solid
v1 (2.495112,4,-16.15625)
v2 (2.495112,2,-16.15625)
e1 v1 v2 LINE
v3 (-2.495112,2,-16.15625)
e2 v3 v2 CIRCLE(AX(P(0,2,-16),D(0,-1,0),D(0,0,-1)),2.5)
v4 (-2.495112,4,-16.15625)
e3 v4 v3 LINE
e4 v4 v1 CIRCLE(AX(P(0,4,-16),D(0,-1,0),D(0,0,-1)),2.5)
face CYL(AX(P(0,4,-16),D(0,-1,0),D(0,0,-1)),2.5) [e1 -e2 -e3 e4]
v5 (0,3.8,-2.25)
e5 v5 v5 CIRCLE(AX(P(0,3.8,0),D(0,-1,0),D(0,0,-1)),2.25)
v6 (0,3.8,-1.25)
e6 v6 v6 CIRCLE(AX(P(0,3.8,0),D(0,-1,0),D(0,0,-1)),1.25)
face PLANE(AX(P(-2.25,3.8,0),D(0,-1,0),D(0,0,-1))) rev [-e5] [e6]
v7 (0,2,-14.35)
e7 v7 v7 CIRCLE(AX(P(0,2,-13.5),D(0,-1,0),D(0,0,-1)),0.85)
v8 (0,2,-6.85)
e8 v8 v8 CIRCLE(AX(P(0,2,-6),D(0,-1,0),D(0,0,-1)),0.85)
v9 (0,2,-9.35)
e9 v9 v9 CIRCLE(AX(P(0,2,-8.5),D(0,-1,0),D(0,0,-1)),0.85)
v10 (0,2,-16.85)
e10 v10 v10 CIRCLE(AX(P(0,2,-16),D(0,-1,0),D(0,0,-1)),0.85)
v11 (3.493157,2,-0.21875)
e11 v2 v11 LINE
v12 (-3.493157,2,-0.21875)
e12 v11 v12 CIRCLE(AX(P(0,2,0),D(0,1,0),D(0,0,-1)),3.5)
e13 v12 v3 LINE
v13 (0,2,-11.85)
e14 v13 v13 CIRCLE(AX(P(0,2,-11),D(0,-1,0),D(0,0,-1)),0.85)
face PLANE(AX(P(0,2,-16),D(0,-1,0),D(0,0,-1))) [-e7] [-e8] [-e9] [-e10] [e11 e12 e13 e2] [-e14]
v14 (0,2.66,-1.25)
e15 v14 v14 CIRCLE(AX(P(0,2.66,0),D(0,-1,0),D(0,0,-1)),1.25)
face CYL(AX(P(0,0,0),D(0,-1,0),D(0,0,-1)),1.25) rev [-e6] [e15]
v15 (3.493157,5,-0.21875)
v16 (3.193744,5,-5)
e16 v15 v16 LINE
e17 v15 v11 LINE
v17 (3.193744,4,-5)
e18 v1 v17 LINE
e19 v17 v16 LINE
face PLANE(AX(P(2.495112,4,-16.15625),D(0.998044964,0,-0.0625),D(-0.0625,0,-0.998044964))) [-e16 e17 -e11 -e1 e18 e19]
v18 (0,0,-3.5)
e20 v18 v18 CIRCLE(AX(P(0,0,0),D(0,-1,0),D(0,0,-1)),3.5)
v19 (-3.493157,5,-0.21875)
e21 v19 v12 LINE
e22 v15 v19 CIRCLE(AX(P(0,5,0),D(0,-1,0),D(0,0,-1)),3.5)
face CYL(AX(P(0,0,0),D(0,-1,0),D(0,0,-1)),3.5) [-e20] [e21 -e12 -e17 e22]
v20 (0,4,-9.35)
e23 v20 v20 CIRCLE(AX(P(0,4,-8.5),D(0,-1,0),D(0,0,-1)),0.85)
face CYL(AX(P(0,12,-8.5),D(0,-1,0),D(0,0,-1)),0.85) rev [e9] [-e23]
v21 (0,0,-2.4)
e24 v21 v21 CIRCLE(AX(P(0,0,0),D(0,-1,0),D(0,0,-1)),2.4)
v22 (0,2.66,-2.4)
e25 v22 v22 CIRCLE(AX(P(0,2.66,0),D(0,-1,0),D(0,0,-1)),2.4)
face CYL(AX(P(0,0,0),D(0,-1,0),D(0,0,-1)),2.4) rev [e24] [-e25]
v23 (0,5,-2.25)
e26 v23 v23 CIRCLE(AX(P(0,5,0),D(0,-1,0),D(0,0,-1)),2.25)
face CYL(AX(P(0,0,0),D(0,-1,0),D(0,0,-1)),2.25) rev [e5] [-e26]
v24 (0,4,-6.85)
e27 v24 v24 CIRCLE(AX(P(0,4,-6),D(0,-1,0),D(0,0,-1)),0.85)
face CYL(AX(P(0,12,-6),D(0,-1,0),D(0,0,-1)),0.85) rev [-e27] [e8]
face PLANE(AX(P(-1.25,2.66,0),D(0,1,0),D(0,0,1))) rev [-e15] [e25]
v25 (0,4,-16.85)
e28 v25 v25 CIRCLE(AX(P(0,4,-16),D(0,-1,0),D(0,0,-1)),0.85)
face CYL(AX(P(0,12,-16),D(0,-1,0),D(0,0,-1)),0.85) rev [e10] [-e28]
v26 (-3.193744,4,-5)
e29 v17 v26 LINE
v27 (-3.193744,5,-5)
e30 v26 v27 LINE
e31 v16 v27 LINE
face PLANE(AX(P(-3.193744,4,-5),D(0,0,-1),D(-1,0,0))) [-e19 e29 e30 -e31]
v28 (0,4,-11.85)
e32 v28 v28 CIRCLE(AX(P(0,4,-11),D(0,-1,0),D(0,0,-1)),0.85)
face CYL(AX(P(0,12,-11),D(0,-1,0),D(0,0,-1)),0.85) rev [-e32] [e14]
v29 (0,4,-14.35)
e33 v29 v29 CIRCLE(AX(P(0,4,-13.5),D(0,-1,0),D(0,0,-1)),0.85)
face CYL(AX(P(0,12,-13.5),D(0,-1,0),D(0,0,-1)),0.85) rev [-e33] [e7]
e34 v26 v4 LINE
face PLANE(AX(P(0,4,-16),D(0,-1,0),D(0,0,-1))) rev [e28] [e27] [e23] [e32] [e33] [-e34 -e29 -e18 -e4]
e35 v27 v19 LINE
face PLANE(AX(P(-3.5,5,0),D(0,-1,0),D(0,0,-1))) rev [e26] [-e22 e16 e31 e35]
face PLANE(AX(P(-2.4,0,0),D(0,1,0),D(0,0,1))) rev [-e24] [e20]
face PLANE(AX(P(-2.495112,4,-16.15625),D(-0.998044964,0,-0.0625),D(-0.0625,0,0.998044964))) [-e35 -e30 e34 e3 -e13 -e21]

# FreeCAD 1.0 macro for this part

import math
import FreeCAD as App
import Part
import Sketcher

V = App.Vector
Q = App.Units.Quantity


def add_polygon(sketch, points):
    """Adds a closed chain of lines whose ends are joined by coincident constraints."""
    first, n = sketch.GeometryCount, len(points)
    for a, b in zip(points, points[1:] + points[:1]):
        sketch.addGeometry(Part.LineSegment(App.Vector(*a, 0), App.Vector(*b, 0)), False)
    for i in range(n):
        sketch.addConstraint(Sketcher.Constraint("Coincident", first + i, 2, first + (i + 1) % n, 1))

doc = App.newDocument("Part")
body = doc.addObject("PartDesign::Body", "Body")

# Sketch on XY plane
sketch1 = doc.addObject("Sketcher::SketchObject", "Sketch")
body.addObject(sketch1)
sketch1.AttachmentSupport = (doc.XY_Plane, [""])
sketch1.MapMode = "FlatFace"
add_polygon(sketch1, [(-3.5, 0), (-2.4, 0), (-2.4, 2.7), (-1.2, 2.7), (-1.2, 3.8), (-2.2, 3.8), (-2.2, 5), (-3.5, 5)])  # lines 0-7
sketch1.addConstraint(Sketcher.Constraint("Horizontal", 0))
sketch1.addConstraint(Sketcher.Constraint("Vertical", 1))
sketch1.addConstraint(Sketcher.Constraint("Horizontal", 2))
sketch1.addConstraint(Sketcher.Constraint("Vertical", 3))
sketch1.addConstraint(Sketcher.Constraint("Horizontal", 4))
sketch1.addConstraint(Sketcher.Constraint("Vertical", 5))
sketch1.addConstraint(Sketcher.Constraint("Horizontal", 6))
sketch1.addConstraint(Sketcher.Constraint("Vertical", 7))
sketch1.addConstraint(Sketcher.Constraint("PointOnObject", 0, 2, -1))
sketch1.addConstraint(Sketcher.Constraint("DistanceX", 4, 2, 4, 1, Q("1 mm")))
sketch1.addConstraint(Sketcher.Constraint("DistanceY", 7, 2, 7, 1, Q("5 mm")))
sketch1.addConstraint(Sketcher.Constraint("DistanceX", 0, 1, 0, 2, Q("1.1 mm")))
sketch1.addConstraint(Sketcher.Constraint("DistanceY", 5, 1, 5, 2, Q("1.2 mm")))
sketch1.addConstraint(Sketcher.Constraint("DistanceX", 2, 1, 2, 2, Q("1.15 mm")))
sketch1.addConstraint(Sketcher.Constraint("DistanceY", 1, 1, 1, 2, Q("2.66 mm")))
sketch1.addConstraint(Sketcher.Constraint("DistanceX", 0, 2, -1, 1, Q("2.4 mm")))
revolution = doc.addObject("PartDesign::Revolution", "Revolution")
body.addObject(revolution)
revolution.Profile = sketch1
revolution.ReferenceAxis = (sketch1, ["V_Axis"])
revolution.Angle = 360

# Sketch on XZ plane
sketch2 = doc.addObject("Sketcher::SketchObject", "Sketch001")
body.addObject(sketch2)
sketch2.AttachmentSupport = (doc.XZ_Plane, [""])
sketch2.MapMode = "FlatFace"
sketch2.AttachmentOffset = App.Placement(V(0, 0, -4), App.Rotation())
sketch2.addGeometry(Part.LineSegment(V(2.5, -16.2, 0), V(3.5, -0.2, 0)), False)
sketch2.addGeometry(Part.ArcOfCircle(Part.Circle(V(0, 0, 0), V(0, 0, 1), 3.5), math.radians(-176), math.radians(-4)), False)
sketch2.addGeometry(Part.LineSegment(V(-3.5, -0.2, 0), V(-2.5, -16.2, 0)), False)
sketch2.addGeometry(Part.ArcOfCircle(Part.Circle(V(0, -16, 0), V(0, 0, 1), 2.5), math.radians(-176), math.radians(-4)), False)
sketch2.addConstraint(Sketcher.Constraint("Tangent", 0, 2, 1, 2))
sketch2.addConstraint(Sketcher.Constraint("Tangent", 1, 1, 2, 1))
sketch2.addConstraint(Sketcher.Constraint("Tangent", 2, 2, 3, 1))
sketch2.addConstraint(Sketcher.Constraint("Tangent", 3, 2, 0, 1))
sketch2.addConstraint(Sketcher.Constraint("Coincident", 1, 3, -1, 1))
sketch2.addConstraint(Sketcher.Constraint("PointOnObject", 3, 3, -2))
sketch2.addConstraint(Sketcher.Constraint("Radius", 1, Q("3.5 mm")))
sketch2.addConstraint(Sketcher.Constraint("Radius", 3, Q("2.5 mm")))
sketch2.addConstraint(Sketcher.Constraint("DistanceY", 3, 3, -1, 1, Q("16 mm")))
pad1 = doc.addObject("PartDesign::Pad", "Pad")
body.addObject(pad1)
pad1.Profile = sketch2
pad1.Length = 2

# Sketch on XZ plane
sketch3 = doc.addObject("Sketcher::SketchObject", "Sketch002")
body.addObject(sketch3)
sketch3.AttachmentSupport = (doc.XZ_Plane, [""])
sketch3.MapMode = "FlatFace"
sketch3.AttachmentOffset = App.Placement(V(0, 0, -5), App.Rotation())
sketch3.addGeometry(Part.LineSegment(V(3.2, -5, 0), V(-3.2, -5, 0)), False)
sketch3.addGeometry(Part.LineSegment(V(-3.2, -5, 0), V(-3.5, -0.2, 0)), False)
sketch3.addGeometry(Part.ArcOfCircle(Part.Circle(V(0, 0, 0), V(0, 0, 1), 3.5), math.radians(-176), math.radians(-4)), False)
sketch3.addGeometry(Part.LineSegment(V(3.5, -0.2, 0), V(3.2, -5, 0)), False)
sketch3.addConstraint(Sketcher.Constraint("Coincident", 0, 2, 1, 1))
sketch3.addConstraint(Sketcher.Constraint("Tangent", 1, 2, 2, 1))
sketch3.addConstraint(Sketcher.Constraint("Tangent", 2, 2, 3, 1))
sketch3.addConstraint(Sketcher.Constraint("Coincident", 3, 2, 0, 1))
sketch3.addConstraint(Sketcher.Constraint("Horizontal", 0))
sketch3.addConstraint(Sketcher.Constraint("Coincident", 2, 3, -1, 1))
sketch3.addConstraint(Sketcher.Constraint("Horizontal", 1, 2, 2, 2))
sketch3.addConstraint(Sketcher.Constraint("Radius", 2, Q("3.5 mm")))
sketch3.addConstraint(Sketcher.Constraint("DistanceY", 0, 2, -1, 1, Q("5 mm")))
sketch3.addConstraint(Sketcher.Constraint("DistanceX", 0, 2, 2, 2, Q("6.686901 mm")))
pad2 = doc.addObject("PartDesign::Pad", "Pad001")
body.addObject(pad2)
pad2.Profile = sketch3
pad2.Length = 1

# Sketch on XZ plane
sketch4 = doc.addObject("Sketcher::SketchObject", "Sketch003")
body.addObject(sketch4)
sketch4.AttachmentSupport = (doc.XZ_Plane, [""])
sketch4.MapMode = "FlatFace"
sketch4.AttachmentOffset = App.Placement(V(0, 0, -2), App.Rotation())
sketch4.addGeometry(Part.Circle(V(0, -6, 0), V(0, 0, 1), 0.8), False)
sketch4.addGeometry(Part.Circle(V(0, -16, 0), V(0, 0, 1), 0.8), False)
sketch4.addGeometry(Part.Circle(V(0, -13.5, 0), V(0, 0, 1), 0.8), False)
sketch4.addGeometry(Part.Circle(V(0, -8.5, 0), V(0, 0, 1), 0.8), False)
sketch4.addGeometry(Part.Circle(V(0, -11, 0), V(0, 0, 1), 0.8), False)
sketch4.addConstraint(Sketcher.Constraint("Equal", 0, 1))
sketch4.addConstraint(Sketcher.Constraint("Equal", 1, 2))
sketch4.addConstraint(Sketcher.Constraint("Equal", 2, 3))
sketch4.addConstraint(Sketcher.Constraint("Equal", 3, 4))
sketch4.addConstraint(Sketcher.Constraint("PointOnObject", 0, 3, -2))
sketch4.addConstraint(Sketcher.Constraint("PointOnObject", 1, 3, -2))
sketch4.addConstraint(Sketcher.Constraint("PointOnObject", 2, 3, -2))
sketch4.addConstraint(Sketcher.Constraint("PointOnObject", 3, 3, -2))
sketch4.addConstraint(Sketcher.Constraint("PointOnObject", 4, 3, -2))
sketch4.addConstraint(Sketcher.Constraint("Diameter", 0, Q("1.7 mm")))
sketch4.addConstraint(Sketcher.Constraint("DistanceY", 0, 3, -1, 1, Q("6 mm")))
sketch4.addConstraint(Sketcher.Constraint("DistanceY", 1, 3, -1, 1, Q("16 mm")))
sketch4.addConstraint(Sketcher.Constraint("DistanceY", 4, 3, -1, 1, Q("11 mm")))
sketch4.addConstraint(Sketcher.Constraint("DistanceY", 2, 3, 3, 3, Q("5 mm")))
sketch4.addConstraint(Sketcher.Constraint("DistanceY", 2, 3, -1, 1, Q("13.5 mm")))
pocket1 = doc.addObject("PartDesign::Pocket", "Pocket")
body.addObject(pocket1)
pocket1.Profile = sketch4
pocket1.Length = 10

doc.recompute()
